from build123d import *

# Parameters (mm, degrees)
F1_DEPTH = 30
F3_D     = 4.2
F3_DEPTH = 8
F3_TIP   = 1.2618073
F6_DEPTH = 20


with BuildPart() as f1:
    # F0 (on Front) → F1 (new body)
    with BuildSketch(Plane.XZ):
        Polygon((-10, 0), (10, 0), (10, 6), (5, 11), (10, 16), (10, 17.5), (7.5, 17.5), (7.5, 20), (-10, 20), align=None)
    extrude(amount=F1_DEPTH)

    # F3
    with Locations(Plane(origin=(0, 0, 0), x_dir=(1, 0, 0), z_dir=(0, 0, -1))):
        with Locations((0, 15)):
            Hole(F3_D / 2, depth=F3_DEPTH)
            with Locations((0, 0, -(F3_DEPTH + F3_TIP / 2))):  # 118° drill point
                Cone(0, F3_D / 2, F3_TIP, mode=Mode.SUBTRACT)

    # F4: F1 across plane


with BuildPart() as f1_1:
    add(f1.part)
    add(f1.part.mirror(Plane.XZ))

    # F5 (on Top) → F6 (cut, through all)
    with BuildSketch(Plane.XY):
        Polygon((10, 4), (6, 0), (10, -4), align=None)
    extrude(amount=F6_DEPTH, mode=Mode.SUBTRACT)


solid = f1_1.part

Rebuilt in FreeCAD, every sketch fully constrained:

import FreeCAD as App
import Part
import Sketcher
from FreeCAD import Vector
Q = App.Units.Quantity


def add_polygon(sketch, points):
    """Adds a closed chain of lines whose ends are joined by coincident constraints."""
    first, n = sketch.GeometryCount, len(points)
    for a, b in zip(points, points[1:] + points[:1]):
        sketch.addGeometry(Part.LineSegment(App.Vector(*a, 0), App.Vector(*b, 0)), False)
    for i in range(n):
        sketch.addConstraint(Sketcher.Constraint("Coincident", first + i, 2, first + (i + 1) % n, 1))

doc = App.newDocument("Part")
body = doc.addObject("PartDesign::Body", "Body")

# Sketch on XZ plane
sketch1 = doc.addObject("Sketcher::SketchObject", "Sketch")
body.addObject(sketch1)
sketch1.AttachmentSupport = (doc.XZ_Plane, [""])
sketch1.MapMode = "FlatFace"
add_polygon(sketch1, [(-10, 0), (10, 0), (10, 6), (5, 11), (10, 16), (10, 17.5), (7.5, 17.5), (7.5, 20), (-10, 20)])  # lines 0-8
sketch1.addConstraint([
    Sketcher.Constraint("Horizontal", 0),
    Sketcher.Constraint("Vertical", 1),
    Sketcher.Constraint("Vertical", 4),
    Sketcher.Constraint("Horizontal", 5),
    Sketcher.Constraint("Vertical", 6),
    Sketcher.Constraint("Horizontal", 7),
    Sketcher.Constraint("Vertical", 8),
    Sketcher.Constraint("Symmetric", 0, 2, 8, 2, -1, 1),
    Sketcher.Constraint("Perpendicular", 2, 3),
    Sketcher.Constraint("Vertical", 1, 2, 3, 2),
    Sketcher.Constraint("Equal", 5, 6),
    Sketcher.Constraint("Equal", 0, 8),
    Sketcher.Constraint("Equal", 2, 3),
    Sketcher.Constraint("DistanceX", 0, 1, 0, 2, Q("20 mm")),
    Sketcher.Constraint("DistanceY", 1, 1, 1, 2, Q("6 mm")),
    Sketcher.Constraint("DistanceX", 5, 2, 5, 1, Q("2.5 mm")),
    Sketcher.Constraint("DistanceY", 4, 1, 4, 2, Q("1.5 mm")),
])
pad1 = doc.addObject("PartDesign::Pad", "Pad")
body.addObject(pad1)
pad1.Profile = sketch1
pad1.Length = 30

# Sketch on XY plane
sketch2 = doc.addObject("Sketcher::SketchObject", "Sketch001")
body.addObject(sketch2)
sketch2.AttachmentSupport = (doc.XY_Plane, [""])
sketch2.MapMode = "FlatFace"
sketch2.addGeometry(Part.Circle(Vector(0, -15, 0), Vector(0, 0, 1), 2.1), False)
sketch2.addConstraint([
    Sketcher.Constraint("PointOnObject", 0, 3, -2),
    Sketcher.Constraint("Diameter", 0, Q("4.2 mm")),
    Sketcher.Constraint("DistanceY", 0, 3, -1, 1, Q("15 mm")),
])
doc.recompute()
hole = doc.addObject("PartDesign::Hole", "Hole")
body.addObject(hole)
hole.Profile = sketch2
hole.ThreadType = "None"
hole.Diameter = 4.2
hole.DepthType = "Dimension"
hole.Depth = 8
hole.DrillPoint = "Angled"
hole.DrillPointAngle = 118
hole.Reversed = True
body2 = doc.addObject("PartDesign::Body", "Body001")
doc.recompute()

body2.BaseFeature = body
doc.recompute()

mirroring = doc.addObject("Part::Mirroring", "Mirroring")
mirroring.Source = body
mirroring.Base = Vector(0, 0, 0)
mirroring.Normal = Vector(0, -1, 0)
body3 = doc.addObject("PartDesign::Body", "Body002")
body3.BaseFeature = mirroring
boolean = doc.addObject("PartDesign::Boolean", "Boolean")
body2.addObject(boolean)
boolean.Type = "Fuse"
boolean.addObjects([body3])
doc.recompute()

# Sketch on XY plane
sketch3 = doc.addObject("Sketcher::SketchObject", "Sketch002")
body2.addObject(sketch3)
sketch3.AttachmentSupport = (doc.getObject("XY_Plane001"), [""])
sketch3.MapMode = "FlatFace"
add_polygon(sketch3, [(10, 4), (6, 0), (10, -4)])  # lines 0-2
sketch3.addConstraint([
    Sketcher.Constraint("Vertical", 2),
    Sketcher.Constraint("PointOnObject", 0, 2, -1),
    Sketcher.Constraint("Perpendicular", 0, 1),
    Sketcher.Constraint("Equal", 0, 1),
    Sketcher.Constraint("DistanceY", 2, 1, 2, 2, Q("8 mm")),
    Sketcher.Constraint("DistanceX", -1, 1, 0, 2, Q("6 mm")),
])
pocket1 = doc.addObject("PartDesign::Pocket", "Pocket")
body2.addObject(pocket1)
pocket1.Profile = sketch3
pocket1.Type = "ThroughAll"
pocket1.Reversed = True
mirroring.Visibility = False

doc.recompute()
